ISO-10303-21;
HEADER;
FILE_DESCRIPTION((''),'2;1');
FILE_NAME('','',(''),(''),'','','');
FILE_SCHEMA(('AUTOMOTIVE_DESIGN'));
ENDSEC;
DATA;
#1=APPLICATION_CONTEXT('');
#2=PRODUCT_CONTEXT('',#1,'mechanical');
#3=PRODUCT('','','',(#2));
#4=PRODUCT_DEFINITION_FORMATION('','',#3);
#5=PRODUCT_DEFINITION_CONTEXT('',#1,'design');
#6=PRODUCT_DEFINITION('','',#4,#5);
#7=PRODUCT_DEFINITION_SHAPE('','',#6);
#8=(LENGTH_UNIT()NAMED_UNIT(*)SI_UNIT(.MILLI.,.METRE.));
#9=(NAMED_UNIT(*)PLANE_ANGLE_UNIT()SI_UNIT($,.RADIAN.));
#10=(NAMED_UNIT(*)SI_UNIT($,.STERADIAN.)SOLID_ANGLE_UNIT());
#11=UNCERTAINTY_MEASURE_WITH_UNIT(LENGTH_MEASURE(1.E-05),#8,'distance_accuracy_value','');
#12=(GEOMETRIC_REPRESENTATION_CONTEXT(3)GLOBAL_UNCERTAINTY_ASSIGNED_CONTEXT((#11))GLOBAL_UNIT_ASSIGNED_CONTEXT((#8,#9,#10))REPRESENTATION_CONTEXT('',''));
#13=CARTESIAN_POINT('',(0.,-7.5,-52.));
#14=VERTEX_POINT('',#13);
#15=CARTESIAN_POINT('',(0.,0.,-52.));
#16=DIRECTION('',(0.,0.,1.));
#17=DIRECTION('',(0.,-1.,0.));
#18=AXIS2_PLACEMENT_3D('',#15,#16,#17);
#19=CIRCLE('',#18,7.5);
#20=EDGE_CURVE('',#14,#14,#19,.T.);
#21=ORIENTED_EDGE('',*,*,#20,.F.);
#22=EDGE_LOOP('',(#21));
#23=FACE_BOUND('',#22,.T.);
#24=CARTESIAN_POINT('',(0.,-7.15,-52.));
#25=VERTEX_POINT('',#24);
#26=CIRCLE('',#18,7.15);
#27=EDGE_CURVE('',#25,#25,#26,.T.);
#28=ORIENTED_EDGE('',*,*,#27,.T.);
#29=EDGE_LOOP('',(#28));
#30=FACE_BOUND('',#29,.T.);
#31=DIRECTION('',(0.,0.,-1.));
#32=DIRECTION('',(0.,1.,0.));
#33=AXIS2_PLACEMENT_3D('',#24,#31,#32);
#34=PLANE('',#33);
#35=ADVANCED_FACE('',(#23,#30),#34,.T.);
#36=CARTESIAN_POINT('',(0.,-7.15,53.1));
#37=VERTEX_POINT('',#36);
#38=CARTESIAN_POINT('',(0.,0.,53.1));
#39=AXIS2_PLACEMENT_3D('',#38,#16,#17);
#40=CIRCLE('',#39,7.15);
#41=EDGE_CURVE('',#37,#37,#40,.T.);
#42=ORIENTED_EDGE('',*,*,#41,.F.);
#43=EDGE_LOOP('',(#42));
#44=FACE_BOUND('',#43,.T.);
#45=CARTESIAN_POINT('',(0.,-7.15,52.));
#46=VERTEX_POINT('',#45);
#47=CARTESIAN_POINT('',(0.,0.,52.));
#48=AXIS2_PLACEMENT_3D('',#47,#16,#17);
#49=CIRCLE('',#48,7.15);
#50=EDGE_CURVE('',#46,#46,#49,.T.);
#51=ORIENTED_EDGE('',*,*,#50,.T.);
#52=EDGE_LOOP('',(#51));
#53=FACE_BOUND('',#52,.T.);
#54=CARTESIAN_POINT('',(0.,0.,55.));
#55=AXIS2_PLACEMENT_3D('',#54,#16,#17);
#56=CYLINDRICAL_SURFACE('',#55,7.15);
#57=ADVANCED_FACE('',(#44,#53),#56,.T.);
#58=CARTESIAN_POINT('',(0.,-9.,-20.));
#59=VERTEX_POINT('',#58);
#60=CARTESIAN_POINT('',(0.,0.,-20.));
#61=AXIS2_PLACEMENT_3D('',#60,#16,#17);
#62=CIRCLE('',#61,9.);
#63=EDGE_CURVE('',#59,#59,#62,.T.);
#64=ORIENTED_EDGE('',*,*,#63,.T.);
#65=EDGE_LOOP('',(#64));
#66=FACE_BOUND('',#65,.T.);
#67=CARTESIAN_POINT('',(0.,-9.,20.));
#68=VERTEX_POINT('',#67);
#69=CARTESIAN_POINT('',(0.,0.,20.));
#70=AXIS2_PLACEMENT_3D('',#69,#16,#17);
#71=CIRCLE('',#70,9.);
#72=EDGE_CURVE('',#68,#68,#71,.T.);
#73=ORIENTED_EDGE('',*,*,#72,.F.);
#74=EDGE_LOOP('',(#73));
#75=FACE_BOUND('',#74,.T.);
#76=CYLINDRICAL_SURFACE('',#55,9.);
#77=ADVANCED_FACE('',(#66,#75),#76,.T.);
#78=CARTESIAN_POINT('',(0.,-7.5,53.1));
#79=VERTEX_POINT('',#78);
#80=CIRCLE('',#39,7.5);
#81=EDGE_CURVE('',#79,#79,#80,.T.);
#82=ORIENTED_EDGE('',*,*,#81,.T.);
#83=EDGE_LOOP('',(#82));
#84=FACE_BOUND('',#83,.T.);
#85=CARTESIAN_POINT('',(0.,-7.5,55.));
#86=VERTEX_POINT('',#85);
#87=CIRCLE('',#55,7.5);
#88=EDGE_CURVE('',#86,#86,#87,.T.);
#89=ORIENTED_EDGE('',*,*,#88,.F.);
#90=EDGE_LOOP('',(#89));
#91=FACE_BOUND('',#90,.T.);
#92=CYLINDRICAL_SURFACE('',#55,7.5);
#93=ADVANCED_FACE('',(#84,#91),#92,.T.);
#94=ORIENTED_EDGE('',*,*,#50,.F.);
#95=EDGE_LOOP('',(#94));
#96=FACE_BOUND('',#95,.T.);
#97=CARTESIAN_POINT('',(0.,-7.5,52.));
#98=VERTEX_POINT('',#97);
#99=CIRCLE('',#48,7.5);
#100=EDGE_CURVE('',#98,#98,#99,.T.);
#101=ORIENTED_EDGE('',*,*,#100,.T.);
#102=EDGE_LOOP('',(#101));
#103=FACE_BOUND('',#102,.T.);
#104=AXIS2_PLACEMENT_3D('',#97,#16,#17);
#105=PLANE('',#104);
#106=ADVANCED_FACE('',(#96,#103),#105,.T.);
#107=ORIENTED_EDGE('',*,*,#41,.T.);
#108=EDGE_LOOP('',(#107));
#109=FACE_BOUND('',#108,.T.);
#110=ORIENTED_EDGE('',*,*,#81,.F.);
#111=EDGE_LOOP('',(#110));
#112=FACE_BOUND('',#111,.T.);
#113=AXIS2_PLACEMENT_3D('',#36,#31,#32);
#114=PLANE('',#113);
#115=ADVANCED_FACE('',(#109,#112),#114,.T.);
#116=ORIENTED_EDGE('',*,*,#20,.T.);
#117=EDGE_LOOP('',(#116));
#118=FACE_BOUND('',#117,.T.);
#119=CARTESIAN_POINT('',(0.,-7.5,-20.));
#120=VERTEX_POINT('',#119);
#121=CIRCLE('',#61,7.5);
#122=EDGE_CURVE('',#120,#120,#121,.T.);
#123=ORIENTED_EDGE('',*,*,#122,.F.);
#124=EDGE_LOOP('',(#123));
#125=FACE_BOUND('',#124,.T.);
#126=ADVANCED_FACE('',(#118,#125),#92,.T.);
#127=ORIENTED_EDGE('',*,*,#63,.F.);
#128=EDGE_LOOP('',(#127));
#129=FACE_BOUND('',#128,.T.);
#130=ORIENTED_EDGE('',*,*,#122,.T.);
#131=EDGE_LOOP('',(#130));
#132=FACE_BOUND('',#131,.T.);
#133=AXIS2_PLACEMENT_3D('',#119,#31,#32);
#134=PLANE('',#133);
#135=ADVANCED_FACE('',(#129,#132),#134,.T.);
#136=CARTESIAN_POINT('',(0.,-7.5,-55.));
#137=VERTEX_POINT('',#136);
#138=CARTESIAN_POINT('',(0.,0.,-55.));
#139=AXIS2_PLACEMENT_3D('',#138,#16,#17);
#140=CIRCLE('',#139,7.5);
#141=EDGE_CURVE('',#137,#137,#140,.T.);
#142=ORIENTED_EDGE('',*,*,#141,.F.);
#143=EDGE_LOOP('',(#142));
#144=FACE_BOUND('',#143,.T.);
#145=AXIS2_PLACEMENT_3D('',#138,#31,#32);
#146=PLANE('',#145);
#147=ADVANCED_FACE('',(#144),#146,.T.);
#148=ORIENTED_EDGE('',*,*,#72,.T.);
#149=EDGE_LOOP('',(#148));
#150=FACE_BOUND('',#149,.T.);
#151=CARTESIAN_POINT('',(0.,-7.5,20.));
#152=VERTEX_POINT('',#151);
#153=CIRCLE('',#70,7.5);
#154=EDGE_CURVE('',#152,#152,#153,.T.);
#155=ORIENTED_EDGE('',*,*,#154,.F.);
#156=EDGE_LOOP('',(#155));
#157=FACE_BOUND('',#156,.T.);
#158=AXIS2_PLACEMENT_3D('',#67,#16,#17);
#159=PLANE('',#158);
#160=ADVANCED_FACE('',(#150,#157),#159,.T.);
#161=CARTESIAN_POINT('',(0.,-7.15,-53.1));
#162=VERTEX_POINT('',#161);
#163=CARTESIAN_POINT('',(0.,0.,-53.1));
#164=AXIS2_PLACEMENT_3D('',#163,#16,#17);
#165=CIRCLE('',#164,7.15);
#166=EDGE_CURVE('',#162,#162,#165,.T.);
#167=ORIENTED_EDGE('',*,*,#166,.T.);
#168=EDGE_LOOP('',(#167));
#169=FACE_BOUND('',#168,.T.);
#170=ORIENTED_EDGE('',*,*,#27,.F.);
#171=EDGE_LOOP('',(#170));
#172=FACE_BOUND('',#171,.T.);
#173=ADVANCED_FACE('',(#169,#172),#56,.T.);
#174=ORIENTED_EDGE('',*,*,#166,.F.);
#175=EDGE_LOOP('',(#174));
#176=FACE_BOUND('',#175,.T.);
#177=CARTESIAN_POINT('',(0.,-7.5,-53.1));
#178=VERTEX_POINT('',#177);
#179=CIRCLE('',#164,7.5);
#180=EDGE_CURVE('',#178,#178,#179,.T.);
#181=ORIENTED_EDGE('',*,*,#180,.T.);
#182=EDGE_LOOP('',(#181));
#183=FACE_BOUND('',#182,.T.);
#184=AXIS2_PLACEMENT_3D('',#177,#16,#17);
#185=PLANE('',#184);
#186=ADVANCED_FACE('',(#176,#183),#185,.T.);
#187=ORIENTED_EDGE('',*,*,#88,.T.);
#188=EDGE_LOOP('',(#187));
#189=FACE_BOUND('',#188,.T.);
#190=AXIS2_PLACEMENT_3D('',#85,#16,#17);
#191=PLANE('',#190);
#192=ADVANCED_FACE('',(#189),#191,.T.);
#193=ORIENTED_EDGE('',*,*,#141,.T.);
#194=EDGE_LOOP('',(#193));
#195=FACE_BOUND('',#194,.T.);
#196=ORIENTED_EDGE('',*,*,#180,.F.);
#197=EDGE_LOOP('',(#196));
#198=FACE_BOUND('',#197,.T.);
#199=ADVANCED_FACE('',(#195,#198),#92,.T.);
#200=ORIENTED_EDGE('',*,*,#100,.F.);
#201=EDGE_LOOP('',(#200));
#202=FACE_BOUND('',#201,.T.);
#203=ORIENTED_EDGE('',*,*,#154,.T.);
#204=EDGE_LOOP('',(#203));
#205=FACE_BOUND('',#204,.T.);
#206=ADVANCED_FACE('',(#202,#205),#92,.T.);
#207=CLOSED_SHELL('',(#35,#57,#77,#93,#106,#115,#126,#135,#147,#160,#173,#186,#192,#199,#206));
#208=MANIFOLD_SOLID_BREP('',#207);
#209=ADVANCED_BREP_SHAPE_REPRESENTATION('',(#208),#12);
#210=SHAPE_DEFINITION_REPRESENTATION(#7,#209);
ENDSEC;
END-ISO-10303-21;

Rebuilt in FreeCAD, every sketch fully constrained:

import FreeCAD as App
import Part
import Sketcher

V = App.Vector

doc = App.newDocument("Part")
body = doc.addObject("PartDesign::Body", "Body")

# Sketch on YZ plane
sketch1 = body.newObject("Sketcher::SketchObject", "Sketch")
sketch1.AttachmentSupport = (doc.getObject("YZ_Plane"), [""])
sketch1.MapMode = "FlatFace"
sketch1.addGeometry([
    Part.LineSegment(V(0, -55, 0), V(0, 55, 0)),  # 0
    Part.LineSegment(V(0, 55, 0), V(-7.5, 55, 0)),  # 1
    Part.LineSegment(V(-7.5, 55, 0), V(-7.5, 53.1, 0)),  # 2
    Part.LineSegment(V(-7.5, 53.1, 0), V(-7.15, 53.1, 0)),  # 3
    Part.LineSegment(V(-7.15, 53.1, 0), V(-7.15, 52, 0)),  # 4
    Part.LineSegment(V(-7.15, 52, 0), V(-7.5, 52, 0)),  # 5
    Part.LineSegment(V(-7.5, 52, 0), V(-7.5, 20, 0)),  # 6
    Part.LineSegment(V(-7.5, 20, 0), V(-9, 20, 0)),  # 7
    Part.LineSegment(V(-9, 20, 0), V(-9, -20, 0)),  # 8
    Part.LineSegment(V(-9, -20, 0), V(-7.5, -20, 0)),  # 9
    Part.LineSegment(V(-7.5, -20, 0), V(-7.5, -52, 0)),  # 10
    Part.LineSegment(V(-7.5, -52, 0), V(-7.15, -52, 0)),  # 11
    Part.LineSegment(V(-7.15, -52, 0), V(-7.15, -53.1, 0)),  # 12
    Part.LineSegment(V(-7.15, -53.1, 0), V(-7.5, -53.1, 0)),  # 13
    Part.LineSegment(V(-7.5, -53.1, 0), V(-7.5, -55, 0)),  # 14
    Part.LineSegment(V(-7.5, -55, 0), V(0, -55, 0)),  # 15
], False)
sketch1.addConstraint([
    Sketcher.Constraint("Coincident", 0, 2, 1, 1),
    Sketcher.Constraint("Coincident", 1, 2, 2, 1),
    Sketcher.Constraint("Coincident", 2, 2, 3, 1),
    Sketcher.Constraint("Coincident", 3, 2, 4, 1),
    Sketcher.Constraint("Coincident", 4, 2, 5, 1),
    Sketcher.Constraint("Coincident", 5, 2, 6, 1),
    Sketcher.Constraint("Coincident", 6, 2, 7, 1),
    Sketcher.Constraint("Coincident", 7, 2, 8, 1),
    Sketcher.Constraint("Coincident", 8, 2, 9, 1),
    Sketcher.Constraint("Coincident", 9, 2, 10, 1),
    Sketcher.Constraint("Coincident", 10, 2, 11, 1),
    Sketcher.Constraint("Coincident", 11, 2, 12, 1),
    Sketcher.Constraint("Coincident", 12, 2, 13, 1),
    Sketcher.Constraint("Coincident", 13, 2, 14, 1),
    Sketcher.Constraint("Coincident", 14, 2, 15, 1),
    Sketcher.Constraint("Coincident", 15, 2, 0, 1),
    Sketcher.Constraint("Vertical", 0),
    Sketcher.Constraint("Horizontal", 1),
    Sketcher.Constraint("Vertical", 2),
    Sketcher.Constraint("Horizontal", 3),
    Sketcher.Constraint("Vertical", 4),
    Sketcher.Constraint("Horizontal", 5),
    Sketcher.Constraint("Vertical", 6),
    Sketcher.Constraint("Horizontal", 7),
    Sketcher.Constraint("Vertical", 8),
    Sketcher.Constraint("Horizontal", 9),
    Sketcher.Constraint("Vertical", 10),
    Sketcher.Constraint("Horizontal", 11),
    Sketcher.Constraint("Vertical", 12),
    Sketcher.Constraint("Horizontal", 13),
    Sketcher.Constraint("Vertical", 14),
    Sketcher.Constraint("Horizontal", 15),
    Sketcher.Constraint("Symmetric", 0, 2, 15, 2, -1, 1),
    Sketcher.Constraint("Symmetric", 6, 2, 9, 2, -1),
    Sketcher.Constraint("Symmetric", 4, 2, 11, 2, -1),
    Sketcher.Constraint("Symmetric", 2, 2, 13, 2, -1),
    Sketcher.Constraint("Vertical", 2, 2, 5, 2),
    Sketcher.Constraint("DistanceY", 0, 1, 0, 2, 110.0),
    Sketcher.Constraint("DistanceY", 6, 2, 6, 1, 32.0),
    Sketcher.Constraint("DistanceY", 8, 2, 8, 1, 40.0),
    Sketcher.Constraint("DistanceX", 1, 2, 1, 1, 7.5),
    Sketcher.Constraint("DistanceX", 7, 2, 7, 1, 1.5),
    Sketcher.Constraint("DistanceY", 2, 2, 2, 1, 1.9),
    Sketcher.Constraint("DistanceX", 3, 1, 3, 2, 0.35),
])
revolution = body.newObject("PartDesign::Revolution", "Revolution")
revolution.Profile = sketch1
revolution.ReferenceAxis = (sketch1, ["V_Axis"])
revolution.Angle = 360

doc.recompute()
